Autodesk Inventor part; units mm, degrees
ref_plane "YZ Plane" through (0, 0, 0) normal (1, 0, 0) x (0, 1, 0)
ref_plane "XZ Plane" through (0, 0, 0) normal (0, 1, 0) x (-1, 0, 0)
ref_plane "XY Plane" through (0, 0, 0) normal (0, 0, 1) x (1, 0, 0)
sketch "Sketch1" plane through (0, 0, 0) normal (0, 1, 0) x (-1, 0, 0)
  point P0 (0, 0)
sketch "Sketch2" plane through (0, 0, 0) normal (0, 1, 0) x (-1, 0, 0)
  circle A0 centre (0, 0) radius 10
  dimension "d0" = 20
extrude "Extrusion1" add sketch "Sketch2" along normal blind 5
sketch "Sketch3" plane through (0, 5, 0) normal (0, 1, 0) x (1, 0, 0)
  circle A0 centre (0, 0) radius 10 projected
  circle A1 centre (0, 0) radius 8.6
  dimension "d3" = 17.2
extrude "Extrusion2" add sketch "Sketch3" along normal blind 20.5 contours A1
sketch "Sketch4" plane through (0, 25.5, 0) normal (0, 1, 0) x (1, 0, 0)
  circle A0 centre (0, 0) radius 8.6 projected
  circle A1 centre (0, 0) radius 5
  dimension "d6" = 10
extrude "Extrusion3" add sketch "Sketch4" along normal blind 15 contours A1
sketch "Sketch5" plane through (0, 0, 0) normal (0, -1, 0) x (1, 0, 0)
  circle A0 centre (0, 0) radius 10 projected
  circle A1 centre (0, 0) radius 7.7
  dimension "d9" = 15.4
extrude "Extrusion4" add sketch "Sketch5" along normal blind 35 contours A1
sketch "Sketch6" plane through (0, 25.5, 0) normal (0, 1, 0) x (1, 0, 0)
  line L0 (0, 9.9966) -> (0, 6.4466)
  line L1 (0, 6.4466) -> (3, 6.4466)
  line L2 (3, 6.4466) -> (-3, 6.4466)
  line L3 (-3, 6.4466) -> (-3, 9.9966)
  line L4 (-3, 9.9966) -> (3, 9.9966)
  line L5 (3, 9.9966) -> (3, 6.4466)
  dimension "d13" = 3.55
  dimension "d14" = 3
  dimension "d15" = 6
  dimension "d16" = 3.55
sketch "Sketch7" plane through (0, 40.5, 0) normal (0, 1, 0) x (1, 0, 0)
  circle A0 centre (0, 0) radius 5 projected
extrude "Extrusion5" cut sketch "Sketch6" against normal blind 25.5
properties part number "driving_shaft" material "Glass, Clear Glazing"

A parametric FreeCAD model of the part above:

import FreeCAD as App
import Part
import Sketcher

V = App.Vector

doc = App.newDocument("Part")
body = doc.addObject("PartDesign::Body", "Body")
body.AllowCompound = True

# Sketch on XZ plane
sketch1 = body.newObject("Sketcher::SketchObject", "Sketch")
sketch1.AttachmentSupport = (doc.getObject("XZ_Plane"), [""])
sketch1.MapMode = "FlatFace"
sketch1.addGeometry(Part.Circle(V(0, 0, 0), V(0, 0, 1), 10), False)
sketch1.addConstraint([
    Sketcher.Constraint("Coincident", 0, 3, -1, 1),
    Sketcher.Constraint("Diameter", 0, 20.0),
])
pad1 = body.newObject("PartDesign::Pad", "Pad")
pad1.Profile = sketch1
pad1.Length = 5
pad1.Reversed = True

# Sketch on XZ plane
sketch2 = body.newObject("Sketcher::SketchObject", "Sketch001")
sketch2.AttachmentSupport = (doc.getObject("XZ_Plane"), [""])
sketch2.MapMode = "FlatFace"
sketch2.AttachmentOffset = App.Placement(V(0, 0, -5), App.Rotation())
sketch2.addGeometry(Part.Circle(V(0, 0, 0), V(0, 0, 1), 8.6), False)
sketch2.addConstraint([
    Sketcher.Constraint("Coincident", 0, 3, -1, 1),
    Sketcher.Constraint("Diameter", 0, 17.2),
])
pad2 = body.newObject("PartDesign::Pad", "Pad001")
pad2.Profile = sketch2
pad2.Length = 20.5
pad2.Reversed = True

# Sketch on XZ plane
sketch3 = body.newObject("Sketcher::SketchObject", "Sketch002")
sketch3.AttachmentSupport = (doc.getObject("XZ_Plane"), [""])
sketch3.MapMode = "FlatFace"
sketch3.AttachmentOffset = App.Placement(V(0, 0, -25.5), App.Rotation())
sketch3.addGeometry(Part.Circle(V(0, 0, 0), V(0, 0, 1), 5), False)
sketch3.addConstraint([
    Sketcher.Constraint("Coincident", 0, 3, -1, 1),
    Sketcher.Constraint("Diameter", 0, 10.0),
])
pad3 = body.newObject("PartDesign::Pad", "Pad002")
pad3.Profile = sketch3
pad3.Length = 15
pad3.Reversed = True

# Sketch on XZ plane
sketch4 = body.newObject("Sketcher::SketchObject", "Sketch003")
sketch4.AttachmentSupport = (doc.getObject("XZ_Plane"), [""])
sketch4.MapMode = "FlatFace"
sketch4.addGeometry(Part.Circle(V(0, 0, 0), V(0, 0, 1), 7.7), False)
sketch4.addConstraint([
    Sketcher.Constraint("Coincident", 0, 3, -1, 1),
    Sketcher.Constraint("Diameter", 0, 15.4),
])
pad4 = body.newObject("PartDesign::Pad", "Pad003")
pad4.Profile = sketch4
pad4.Length = 35

# Sketch on XZ plane
sketch5 = body.newObject("Sketcher::SketchObject", "Sketch004")
sketch5.AttachmentSupport = (doc.getObject("XZ_Plane"), [""])
sketch5.MapMode = "FlatFace"
sketch5.AttachmentOffset = App.Placement(V(0, 0, -25.5), App.Rotation())
sketch5.addGeometry([
    Part.LineSegment(V(3, -9.9966, 0), V(-3, -9.9966, 0)),
    Part.LineSegment(V(-3, -9.9966, 0), V(-3, -6.4466, 0)),
    Part.LineSegment(V(-3, -6.4466, 0), V(3, -6.4466, 0)),
    Part.LineSegment(V(3, -6.4466, 0), V(3, -9.9966, 0)),
], False)
sketch5.addConstraint([
    Sketcher.Constraint("Coincident", 0, 2, 1, 1),
    Sketcher.Constraint("Coincident", 1, 2, 2, 1),
    Sketcher.Constraint("Coincident", 2, 2, 3, 1),
    Sketcher.Constraint("Coincident", 3, 2, 0, 1),
    Sketcher.Constraint("Horizontal", 0),
    Sketcher.Constraint("Vertical", 1),
    Sketcher.Constraint("Horizontal", 2),
    Sketcher.Constraint("Vertical", 3),
    Sketcher.Constraint("DistanceX", 0, 2, 0, 1, 6.0),
    Sketcher.Constraint("DistanceX", 0, 2, -1, 1, 3.0),
    Sketcher.Constraint("DistanceY", 1, 1, 1, 2, 3.55),
    Sketcher.Constraint("DistanceY", 0, 2, -1, 1, 9.9966),
])
pocket1 = body.newObject("PartDesign::Pocket", "Pocket")
pocket1.Profile = sketch5
pocket1.Length = 25.5
pocket1.Reversed = True

doc.recompute()
